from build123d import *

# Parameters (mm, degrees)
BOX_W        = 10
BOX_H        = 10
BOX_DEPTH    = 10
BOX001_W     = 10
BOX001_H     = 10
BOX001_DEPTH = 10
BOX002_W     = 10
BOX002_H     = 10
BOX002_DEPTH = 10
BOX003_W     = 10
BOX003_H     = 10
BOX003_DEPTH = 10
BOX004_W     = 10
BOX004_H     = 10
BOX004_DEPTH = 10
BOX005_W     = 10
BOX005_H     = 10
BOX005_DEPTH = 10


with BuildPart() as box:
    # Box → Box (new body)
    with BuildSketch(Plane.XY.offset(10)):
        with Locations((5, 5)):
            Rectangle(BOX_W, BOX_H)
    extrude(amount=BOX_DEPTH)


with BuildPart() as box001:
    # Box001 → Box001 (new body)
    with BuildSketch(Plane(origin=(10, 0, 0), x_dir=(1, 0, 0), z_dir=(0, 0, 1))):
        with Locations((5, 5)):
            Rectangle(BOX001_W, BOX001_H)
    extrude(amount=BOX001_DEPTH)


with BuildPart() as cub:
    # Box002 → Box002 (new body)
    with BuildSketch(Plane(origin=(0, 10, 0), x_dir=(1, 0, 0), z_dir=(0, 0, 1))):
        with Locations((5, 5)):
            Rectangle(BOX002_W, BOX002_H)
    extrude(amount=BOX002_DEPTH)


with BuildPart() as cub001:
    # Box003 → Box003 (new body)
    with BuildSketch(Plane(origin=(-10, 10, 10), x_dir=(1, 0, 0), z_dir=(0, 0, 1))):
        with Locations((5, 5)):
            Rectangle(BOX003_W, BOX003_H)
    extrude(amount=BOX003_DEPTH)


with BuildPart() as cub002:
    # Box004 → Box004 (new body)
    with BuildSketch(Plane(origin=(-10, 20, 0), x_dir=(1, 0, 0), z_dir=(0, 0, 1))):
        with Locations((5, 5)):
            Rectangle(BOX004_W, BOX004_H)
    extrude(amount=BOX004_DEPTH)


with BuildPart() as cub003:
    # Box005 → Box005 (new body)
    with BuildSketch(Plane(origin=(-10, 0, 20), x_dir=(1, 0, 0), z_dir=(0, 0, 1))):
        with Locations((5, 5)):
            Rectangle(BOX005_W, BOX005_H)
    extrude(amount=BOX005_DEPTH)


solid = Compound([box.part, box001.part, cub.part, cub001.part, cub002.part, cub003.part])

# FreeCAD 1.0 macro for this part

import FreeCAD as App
import Part
import Sketcher

V = App.Vector
Q = App.Units.Quantity


def add_polygon(sketch, points):
    """Adds a closed chain of lines whose ends are joined by coincident constraints."""
    first, n = sketch.GeometryCount, len(points)
    for a, b in zip(points, points[1:] + points[:1]):
        sketch.addGeometry(Part.LineSegment(App.Vector(*a, 0), App.Vector(*b, 0)), False)
    for i in range(n):
        sketch.addConstraint(Sketcher.Constraint("Coincident", first + i, 2, first + (i + 1) % n, 1))

doc = App.newDocument("Part")
body = doc.addObject("PartDesign::Body", "Body")

sketch1 = body.newObject("Sketcher::SketchObject", "Sketch")
sketch1.AttachmentSupport = (doc.getObject("XY_Plane"), [""])
sketch1.MapMode = "FlatFace"
sketch1.AttachmentOffset = App.Placement(V(0, 0, 10), App.Rotation())
add_polygon(sketch1, [(0, 10), (0, 0), (10, 0), (10, 10)])
sketch1.addConstraint([
    Sketcher.Constraint("Vertical", 0),
    Sketcher.Constraint("Horizontal", 1),
    Sketcher.Constraint("Vertical", 2),
    Sketcher.Constraint("Horizontal", 3),
    Sketcher.Constraint("Coincident", 0, 2, -1, 1),
    Sketcher.Constraint("Equal", 3, 0),
    Sketcher.Constraint("DistanceX", 1, 1, 1, 2, Q("10 mm")),
])
pad1 = body.newObject("PartDesign::Pad", "Pad")
pad1.Profile = sketch1
pad1.Length = 10
body2 = doc.addObject("PartDesign::Body", "Body001")

sketch2 = body2.newObject("Sketcher::SketchObject", "Sketch001")
sketch2.AttachmentSupport = (doc.getObject("XY_Plane001"), [""])
sketch2.MapMode = "FlatFace"
add_polygon(sketch2, [(10, 10), (10, 0), (20, 0), (20, 10)])
sketch2.addConstraint([
    Sketcher.Constraint("Vertical", 0),
    Sketcher.Constraint("Horizontal", 1),
    Sketcher.Constraint("Vertical", 2),
    Sketcher.Constraint("Horizontal", 3),
    Sketcher.Constraint("PointOnObject", 0, 2, -1),
    Sketcher.Constraint("Equal", 3, 0),
    Sketcher.Constraint("DistanceX", 1, 1, 1, 2, Q("10 mm")),
    Sketcher.Constraint("DistanceX", -1, 1, 0, 2, Q("10 mm")),
])
pad2 = body2.newObject("PartDesign::Pad", "Pad001")
pad2.Profile = sketch2
pad2.Length = 10
body3 = doc.addObject("PartDesign::Body", "Body002")

sketch3 = body3.newObject("Sketcher::SketchObject", "Sketch002")
sketch3.AttachmentSupport = (doc.getObject("XY_Plane002"), [""])
sketch3.MapMode = "FlatFace"
add_polygon(sketch3, [(0, 20), (0, 10), (10, 10), (10, 20)])
sketch3.addConstraint([
    Sketcher.Constraint("Vertical", 0),
    Sketcher.Constraint("Horizontal", 1),
    Sketcher.Constraint("Vertical", 2),
    Sketcher.Constraint("Horizontal", 3),
    Sketcher.Constraint("PointOnObject", 0, 2, -2),
    Sketcher.Constraint("Equal", 3, 0),
    Sketcher.Constraint("DistanceX", 1, 1, 1, 2, Q("10 mm")),
    Sketcher.Constraint("DistanceY", -1, 1, 0, 2, Q("10 mm")),
])
pad3 = body3.newObject("PartDesign::Pad", "Pad002")
pad3.Profile = sketch3
pad3.Length = 10
body4 = doc.addObject("PartDesign::Body", "Body003")

sketch4 = body4.newObject("Sketcher::SketchObject", "Sketch003")
sketch4.AttachmentSupport = (doc.getObject("XY_Plane003"), [""])
sketch4.MapMode = "FlatFace"
sketch4.AttachmentOffset = App.Placement(V(0, 0, 10), App.Rotation())
add_polygon(sketch4, [(-10, 20), (-10, 10), (0, 10), (0, 20)])
sketch4.addConstraint([
    Sketcher.Constraint("Vertical", 0),
    Sketcher.Constraint("Horizontal", 1),
    Sketcher.Constraint("Vertical", 2),
    Sketcher.Constraint("Horizontal", 3),
    Sketcher.Constraint("PointOnObject", 1, 2, -2),
    Sketcher.Constraint("Equal", 3, 0),
    Sketcher.Constraint("DistanceX", 1, 1, 1, 2, Q("10 mm")),
    Sketcher.Constraint("DistanceY", -1, 1, 0, 2, Q("10 mm")),
])
pad4 = body4.newObject("PartDesign::Pad", "Pad003")
pad4.Profile = sketch4
pad4.Length = 10
body5 = doc.addObject("PartDesign::Body", "Body004")

sketch5 = body5.newObject("Sketcher::SketchObject", "Sketch004")
sketch5.AttachmentSupport = (doc.getObject("XY_Plane004"), [""])
sketch5.MapMode = "FlatFace"
add_polygon(sketch5, [(-10, 30), (-10, 20), (0, 20), (0, 30)])
sketch5.addConstraint([
    Sketcher.Constraint("Vertical", 0),
    Sketcher.Constraint("Horizontal", 1),
    Sketcher.Constraint("Vertical", 2),
    Sketcher.Constraint("Horizontal", 3),
    Sketcher.Constraint("PointOnObject", 1, 2, -2),
    Sketcher.Constraint("Equal", 3, 0),
    Sketcher.Constraint("DistanceX", 1, 1, 1, 2, Q("10 mm")),
    Sketcher.Constraint("DistanceY", -1, 1, 0, 2, Q("20 mm")),
])
pad5 = body5.newObject("PartDesign::Pad", "Pad004")
pad5.Profile = sketch5
pad5.Length = 10
body6 = doc.addObject("PartDesign::Body", "Body005")

sketch6 = body6.newObject("Sketcher::SketchObject", "Sketch005")
sketch6.AttachmentSupport = (doc.getObject("XY_Plane005"), [""])
sketch6.MapMode = "FlatFace"
sketch6.AttachmentOffset = App.Placement(V(0, 0, 20), App.Rotation())
add_polygon(sketch6, [(-10, 10), (-10, 0), (0, 0), (0, 10)])
sketch6.addConstraint([
    Sketcher.Constraint("Vertical", 0),
    Sketcher.Constraint("Horizontal", 1),
    Sketcher.Constraint("Vertical", 2),
    Sketcher.Constraint("Horizontal", 3),
    Sketcher.Constraint("Coincident", 1, 2, -1, 1),
    Sketcher.Constraint("Equal", 3, 0),
    Sketcher.Constraint("DistanceX", 1, 1, 1, 2, Q("10 mm")),
])
pad6 = body6.newObject("PartDesign::Pad", "Pad005")
pad6.Profile = sketch6
pad6.Length = 10

doc.recompute()
